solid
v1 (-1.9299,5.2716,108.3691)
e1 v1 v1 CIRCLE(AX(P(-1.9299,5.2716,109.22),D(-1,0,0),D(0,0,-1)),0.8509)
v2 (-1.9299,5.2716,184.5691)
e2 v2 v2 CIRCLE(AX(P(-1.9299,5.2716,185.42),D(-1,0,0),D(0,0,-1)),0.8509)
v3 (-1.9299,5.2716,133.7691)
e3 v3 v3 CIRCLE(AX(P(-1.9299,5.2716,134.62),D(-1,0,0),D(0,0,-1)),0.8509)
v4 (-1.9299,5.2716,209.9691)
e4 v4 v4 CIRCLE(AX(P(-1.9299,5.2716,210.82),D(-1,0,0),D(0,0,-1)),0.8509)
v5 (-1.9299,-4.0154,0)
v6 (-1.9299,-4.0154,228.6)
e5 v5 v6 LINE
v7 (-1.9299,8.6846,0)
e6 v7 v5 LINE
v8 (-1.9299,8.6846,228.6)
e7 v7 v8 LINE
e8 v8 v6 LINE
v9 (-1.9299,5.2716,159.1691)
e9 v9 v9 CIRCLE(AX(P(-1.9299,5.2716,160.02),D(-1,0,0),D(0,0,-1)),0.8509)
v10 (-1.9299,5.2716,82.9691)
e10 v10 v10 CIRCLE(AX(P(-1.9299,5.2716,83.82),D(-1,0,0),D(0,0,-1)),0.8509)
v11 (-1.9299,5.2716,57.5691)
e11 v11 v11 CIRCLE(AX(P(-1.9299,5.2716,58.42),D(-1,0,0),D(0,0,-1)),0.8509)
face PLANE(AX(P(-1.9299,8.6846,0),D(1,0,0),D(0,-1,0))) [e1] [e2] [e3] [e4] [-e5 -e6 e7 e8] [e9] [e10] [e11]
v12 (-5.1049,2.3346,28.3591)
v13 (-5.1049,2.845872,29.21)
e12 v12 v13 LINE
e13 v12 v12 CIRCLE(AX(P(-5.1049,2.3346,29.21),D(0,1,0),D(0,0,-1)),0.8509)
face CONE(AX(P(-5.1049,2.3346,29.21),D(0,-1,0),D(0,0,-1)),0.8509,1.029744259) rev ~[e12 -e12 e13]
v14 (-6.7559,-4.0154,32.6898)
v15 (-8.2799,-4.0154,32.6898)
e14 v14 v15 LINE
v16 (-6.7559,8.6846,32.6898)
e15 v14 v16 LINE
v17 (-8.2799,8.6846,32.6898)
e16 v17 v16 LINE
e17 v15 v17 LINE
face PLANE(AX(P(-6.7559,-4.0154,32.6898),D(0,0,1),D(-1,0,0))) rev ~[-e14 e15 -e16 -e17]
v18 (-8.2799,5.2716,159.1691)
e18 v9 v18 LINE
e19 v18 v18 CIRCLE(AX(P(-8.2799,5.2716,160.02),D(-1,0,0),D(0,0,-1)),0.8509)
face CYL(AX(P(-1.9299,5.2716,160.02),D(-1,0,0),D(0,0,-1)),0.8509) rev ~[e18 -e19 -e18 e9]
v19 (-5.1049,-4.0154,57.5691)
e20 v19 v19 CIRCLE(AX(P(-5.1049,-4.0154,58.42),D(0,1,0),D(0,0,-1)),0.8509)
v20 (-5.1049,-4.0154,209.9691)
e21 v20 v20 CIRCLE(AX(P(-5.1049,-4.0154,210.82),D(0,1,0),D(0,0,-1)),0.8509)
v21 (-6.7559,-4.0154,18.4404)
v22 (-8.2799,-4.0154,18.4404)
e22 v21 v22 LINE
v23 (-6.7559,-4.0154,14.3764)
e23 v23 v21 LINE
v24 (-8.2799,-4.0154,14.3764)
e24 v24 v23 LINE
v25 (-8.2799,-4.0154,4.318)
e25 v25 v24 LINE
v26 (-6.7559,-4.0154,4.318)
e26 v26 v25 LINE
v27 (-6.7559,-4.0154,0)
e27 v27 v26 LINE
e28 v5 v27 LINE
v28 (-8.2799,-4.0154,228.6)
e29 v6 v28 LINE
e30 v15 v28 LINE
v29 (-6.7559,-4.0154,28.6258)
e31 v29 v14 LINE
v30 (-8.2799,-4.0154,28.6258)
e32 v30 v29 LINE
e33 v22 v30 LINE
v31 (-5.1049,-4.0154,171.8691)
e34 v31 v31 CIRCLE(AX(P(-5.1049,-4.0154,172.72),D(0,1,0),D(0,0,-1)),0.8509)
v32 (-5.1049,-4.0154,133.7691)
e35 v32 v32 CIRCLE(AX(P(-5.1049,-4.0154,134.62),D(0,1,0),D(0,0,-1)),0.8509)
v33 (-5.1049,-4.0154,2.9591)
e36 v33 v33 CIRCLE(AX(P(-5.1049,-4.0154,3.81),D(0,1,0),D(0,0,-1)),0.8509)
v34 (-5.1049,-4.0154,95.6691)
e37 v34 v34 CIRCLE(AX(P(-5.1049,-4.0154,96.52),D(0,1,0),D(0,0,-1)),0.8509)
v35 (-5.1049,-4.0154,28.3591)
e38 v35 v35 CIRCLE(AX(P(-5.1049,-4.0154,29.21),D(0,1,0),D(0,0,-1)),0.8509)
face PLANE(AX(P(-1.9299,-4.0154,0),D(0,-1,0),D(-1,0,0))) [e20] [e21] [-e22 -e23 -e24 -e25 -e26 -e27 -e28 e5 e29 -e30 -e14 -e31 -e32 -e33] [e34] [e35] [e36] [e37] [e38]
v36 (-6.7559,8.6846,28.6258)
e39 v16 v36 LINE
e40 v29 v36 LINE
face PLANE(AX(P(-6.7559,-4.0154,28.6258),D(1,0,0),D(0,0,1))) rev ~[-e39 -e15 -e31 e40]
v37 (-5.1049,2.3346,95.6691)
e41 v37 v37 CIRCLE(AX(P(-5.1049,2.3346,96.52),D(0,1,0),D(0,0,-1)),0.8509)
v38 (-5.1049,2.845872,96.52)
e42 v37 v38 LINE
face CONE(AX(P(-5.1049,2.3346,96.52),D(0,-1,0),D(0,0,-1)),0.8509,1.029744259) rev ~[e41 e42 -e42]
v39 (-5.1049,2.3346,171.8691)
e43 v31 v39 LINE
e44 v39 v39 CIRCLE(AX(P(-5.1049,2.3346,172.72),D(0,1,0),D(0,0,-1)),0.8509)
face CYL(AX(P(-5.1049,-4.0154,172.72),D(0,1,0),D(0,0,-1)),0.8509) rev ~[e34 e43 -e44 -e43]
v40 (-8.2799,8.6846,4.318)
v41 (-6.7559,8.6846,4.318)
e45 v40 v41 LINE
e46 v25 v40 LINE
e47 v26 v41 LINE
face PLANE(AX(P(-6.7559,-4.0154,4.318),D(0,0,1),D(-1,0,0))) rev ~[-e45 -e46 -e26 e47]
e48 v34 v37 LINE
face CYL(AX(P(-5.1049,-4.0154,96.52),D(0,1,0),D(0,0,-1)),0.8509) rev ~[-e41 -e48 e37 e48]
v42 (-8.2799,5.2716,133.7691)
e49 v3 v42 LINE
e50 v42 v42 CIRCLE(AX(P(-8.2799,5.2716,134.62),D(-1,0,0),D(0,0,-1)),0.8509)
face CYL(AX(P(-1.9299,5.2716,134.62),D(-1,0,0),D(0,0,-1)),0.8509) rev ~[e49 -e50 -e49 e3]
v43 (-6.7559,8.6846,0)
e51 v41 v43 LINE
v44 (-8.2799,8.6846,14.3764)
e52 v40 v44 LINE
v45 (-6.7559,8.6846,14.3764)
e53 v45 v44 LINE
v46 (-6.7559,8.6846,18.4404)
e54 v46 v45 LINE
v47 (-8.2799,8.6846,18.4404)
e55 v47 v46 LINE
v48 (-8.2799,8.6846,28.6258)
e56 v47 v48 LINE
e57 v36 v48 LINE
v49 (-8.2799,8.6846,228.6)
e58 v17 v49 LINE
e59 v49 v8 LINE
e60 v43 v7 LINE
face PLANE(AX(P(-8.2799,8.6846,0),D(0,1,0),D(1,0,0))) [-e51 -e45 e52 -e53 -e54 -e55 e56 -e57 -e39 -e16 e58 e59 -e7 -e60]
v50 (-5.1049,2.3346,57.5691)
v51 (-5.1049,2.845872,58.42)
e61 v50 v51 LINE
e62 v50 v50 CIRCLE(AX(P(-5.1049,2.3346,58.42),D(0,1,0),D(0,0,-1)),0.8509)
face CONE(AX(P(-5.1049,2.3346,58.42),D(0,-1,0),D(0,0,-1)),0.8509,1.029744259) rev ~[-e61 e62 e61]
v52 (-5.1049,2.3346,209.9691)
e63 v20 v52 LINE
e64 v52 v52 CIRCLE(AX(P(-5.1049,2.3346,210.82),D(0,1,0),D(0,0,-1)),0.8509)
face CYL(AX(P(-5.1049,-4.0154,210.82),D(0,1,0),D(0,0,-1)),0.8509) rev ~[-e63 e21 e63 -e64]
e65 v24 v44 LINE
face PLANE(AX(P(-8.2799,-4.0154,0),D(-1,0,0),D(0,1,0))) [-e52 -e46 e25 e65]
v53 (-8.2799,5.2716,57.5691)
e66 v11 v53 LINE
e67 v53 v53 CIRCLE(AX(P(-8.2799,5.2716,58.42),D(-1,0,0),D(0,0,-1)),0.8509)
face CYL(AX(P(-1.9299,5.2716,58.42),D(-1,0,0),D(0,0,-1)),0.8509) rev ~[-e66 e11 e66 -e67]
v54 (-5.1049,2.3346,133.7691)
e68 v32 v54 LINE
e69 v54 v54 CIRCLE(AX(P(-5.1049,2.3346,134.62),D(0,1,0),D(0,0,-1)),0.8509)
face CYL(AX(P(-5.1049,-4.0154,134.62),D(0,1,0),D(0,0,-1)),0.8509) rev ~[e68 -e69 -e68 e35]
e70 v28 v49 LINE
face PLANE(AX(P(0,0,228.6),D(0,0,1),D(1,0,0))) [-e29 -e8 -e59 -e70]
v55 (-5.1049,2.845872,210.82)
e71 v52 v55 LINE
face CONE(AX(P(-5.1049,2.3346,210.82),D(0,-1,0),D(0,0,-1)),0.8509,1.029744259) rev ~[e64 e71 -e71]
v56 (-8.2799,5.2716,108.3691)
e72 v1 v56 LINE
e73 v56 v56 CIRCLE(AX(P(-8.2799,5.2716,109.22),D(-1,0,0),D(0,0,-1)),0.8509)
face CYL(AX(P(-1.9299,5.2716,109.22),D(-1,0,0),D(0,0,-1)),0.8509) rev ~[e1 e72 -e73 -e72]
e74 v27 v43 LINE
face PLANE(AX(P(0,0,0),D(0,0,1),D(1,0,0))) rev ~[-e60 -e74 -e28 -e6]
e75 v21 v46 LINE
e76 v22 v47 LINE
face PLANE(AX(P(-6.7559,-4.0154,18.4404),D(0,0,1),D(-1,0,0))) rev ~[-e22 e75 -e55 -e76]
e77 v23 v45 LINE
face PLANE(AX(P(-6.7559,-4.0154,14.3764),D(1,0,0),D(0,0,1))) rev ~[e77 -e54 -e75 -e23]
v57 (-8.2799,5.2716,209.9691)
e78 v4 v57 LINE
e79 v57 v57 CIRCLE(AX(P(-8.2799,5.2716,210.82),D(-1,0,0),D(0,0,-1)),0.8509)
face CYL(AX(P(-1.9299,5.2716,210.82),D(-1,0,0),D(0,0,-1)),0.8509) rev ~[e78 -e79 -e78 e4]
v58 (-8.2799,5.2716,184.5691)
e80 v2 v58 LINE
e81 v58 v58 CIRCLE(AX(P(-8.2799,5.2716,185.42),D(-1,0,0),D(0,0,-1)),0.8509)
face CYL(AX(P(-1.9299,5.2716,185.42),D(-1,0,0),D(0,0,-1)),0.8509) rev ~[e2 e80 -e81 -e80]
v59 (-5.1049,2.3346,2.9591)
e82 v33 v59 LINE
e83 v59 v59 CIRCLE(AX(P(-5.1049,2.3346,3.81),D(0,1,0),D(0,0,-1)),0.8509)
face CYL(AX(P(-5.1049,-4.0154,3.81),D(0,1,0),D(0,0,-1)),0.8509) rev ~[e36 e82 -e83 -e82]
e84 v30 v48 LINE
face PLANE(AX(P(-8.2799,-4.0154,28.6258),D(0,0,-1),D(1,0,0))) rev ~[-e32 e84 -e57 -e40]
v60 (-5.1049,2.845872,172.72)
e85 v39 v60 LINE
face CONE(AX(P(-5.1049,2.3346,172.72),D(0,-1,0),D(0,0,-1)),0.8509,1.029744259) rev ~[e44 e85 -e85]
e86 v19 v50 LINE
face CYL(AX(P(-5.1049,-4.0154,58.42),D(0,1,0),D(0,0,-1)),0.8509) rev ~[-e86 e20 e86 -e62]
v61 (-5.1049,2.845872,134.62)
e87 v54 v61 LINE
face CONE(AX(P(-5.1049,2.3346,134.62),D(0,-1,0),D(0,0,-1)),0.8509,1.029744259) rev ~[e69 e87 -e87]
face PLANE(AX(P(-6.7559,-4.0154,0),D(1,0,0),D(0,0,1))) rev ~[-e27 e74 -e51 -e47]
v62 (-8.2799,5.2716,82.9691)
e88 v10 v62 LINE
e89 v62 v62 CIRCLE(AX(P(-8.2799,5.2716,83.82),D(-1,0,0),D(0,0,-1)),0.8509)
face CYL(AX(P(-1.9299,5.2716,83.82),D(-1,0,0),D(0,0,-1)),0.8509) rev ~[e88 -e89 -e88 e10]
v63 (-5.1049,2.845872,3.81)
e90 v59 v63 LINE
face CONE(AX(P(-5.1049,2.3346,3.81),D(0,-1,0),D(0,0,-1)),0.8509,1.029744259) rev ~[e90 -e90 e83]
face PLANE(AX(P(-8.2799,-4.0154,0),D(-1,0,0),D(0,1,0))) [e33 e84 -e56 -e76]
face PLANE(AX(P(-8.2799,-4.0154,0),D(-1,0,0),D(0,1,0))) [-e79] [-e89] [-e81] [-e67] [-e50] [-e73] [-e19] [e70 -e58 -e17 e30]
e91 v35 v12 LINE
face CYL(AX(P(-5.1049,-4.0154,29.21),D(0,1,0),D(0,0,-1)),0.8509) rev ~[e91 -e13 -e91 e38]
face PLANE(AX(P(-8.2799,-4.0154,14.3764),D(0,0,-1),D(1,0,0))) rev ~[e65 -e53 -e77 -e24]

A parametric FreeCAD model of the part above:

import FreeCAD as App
import Part
import Sketcher
from FreeCAD import Vector
Q = App.Units.Quantity


def add_polygon(sketch, points):
    """Adds a closed chain of lines whose ends are joined by coincident constraints."""
    first, n = sketch.GeometryCount, len(points)
    for a, b in zip(points, points[1:] + points[:1]):
        sketch.addGeometry(Part.LineSegment(App.Vector(*a, 0), App.Vector(*b, 0)), False)
    for i in range(n):
        sketch.addConstraint(Sketcher.Constraint("Coincident", first + i, 2, first + (i + 1) % n, 1))

doc = App.newDocument("Part")
body = doc.addObject("PartDesign::Body", "Body")

sketch1 = body.newObject("Sketcher::SketchObject", "Sketch")
sketch1.AttachmentSupport = (doc.getObject("XY_Plane"), [""])
sketch1.MapMode = "FlatFace"
add_polygon(sketch1, [(-2, 9), (-8, 9), (-8, -4), (-2, -4)])
sketch1.addConstraint([
    Sketcher.Constraint("Horizontal", 0),
    Sketcher.Constraint("Vertical", 1),
    Sketcher.Constraint("Horizontal", 2),
    Sketcher.Constraint("Vertical", 3),
    Sketcher.Constraint("DistanceY", 1, 2, 1, 1, Q("0.5 in")),
    Sketcher.Constraint("DistanceX", 0, 2, 0, 1, Q("0.25 in")),
    Sketcher.Constraint("DistanceX", 0, 2, -1, 1, 8.28),
    Sketcher.Constraint("DistanceY", -1, 1, 0, 2, 8.6846),
])
pad1 = body.newObject("PartDesign::Pad", "Pad")
pad1.Profile = sketch1
pad1.Length = Q("9 in")

sketch2 = body.newObject("Sketcher::SketchObject", "Sketch001")
sketch2.AttachmentSupport = (doc.getObject("YZ_Plane"), [""])
sketch2.MapMode = "FlatFace"
sketch2.AttachmentOffset = App.Placement(Vector(0, 0, -1.9299), App.Rotation())
sketch2.addGeometry(Part.Circle(Vector(5.3, 210.8, 0), Vector(0, 0, 1), 0.9), False)
sketch2.addConstraint([
    Sketcher.Constraint("Diameter", 0, Q("0.067 in")),
    Sketcher.Constraint("DistanceY", -1, 1, 0, 3, Q("8.3 in")),
    Sketcher.Constraint("DistanceX", -1, 1, 0, 3, 5.2716),
])
doc.recompute()
hole = body.newObject("PartDesign::Hole", "Hole")
hole.Profile = sketch2
hole.ThreadType = "None"
hole.Diameter = Q("0.067 in")
hole.DepthType = "ThroughAll"
doc.recompute()

linearpattern = body.newObject("PartDesign::LinearPattern", "LinearPattern")
linearpattern.Originals = [hole]
linearpattern.Direction = (doc.getObject("Z_Axis"), [""])
linearpattern.Mode = "offset"
linearpattern.Offset = Q("1 in")
linearpattern.Occurrences = 7
linearpattern.Reversed = True
body.Tip = linearpattern

sketch3 = body.newObject("Sketcher::SketchObject", "Sketch002")
sketch3.AttachmentSupport = (doc.getObject("XZ_Plane"), [""])
sketch3.MapMode = "FlatFace"
sketch3.AttachmentOffset = App.Placement(Vector(0, 0, 4.0154), App.Rotation())
sketch3.addGeometry(Part.Circle(Vector(-5.1, 3.8, 0), Vector(0, 0, 1), 0.9), False)
sketch3.addConstraint([
    Sketcher.Constraint("Diameter", 0, Q("0.067 in")),
    Sketcher.Constraint("DistanceY", -1, 1, 0, 3, Q("0.15 in")),
    Sketcher.Constraint("DistanceX", 0, 3, -1, 1, 5.105),
])
doc.recompute()
hole2 = body.newObject("PartDesign::Hole", "Hole001")
hole2.Profile = sketch3
hole2.ThreadType = "None"
hole2.Diameter = Q("0.067 in")
hole2.DepthType = "Dimension"
hole2.Depth = Q("0.25 in")
hole2.DrillPoint = "Angled"
hole2.DrillPointAngle = 118

sketch4 = body.newObject("Sketcher::SketchObject", "Sketch003")
sketch4.AttachmentSupport = (doc.getObject("XZ_Plane"), [""])
sketch4.MapMode = "FlatFace"
sketch4.AttachmentOffset = App.Placement(Vector(0, 0, 4.0154), App.Rotation())
sketch4.addGeometry(Part.Circle(Vector(-5.1, 58.4, 0), Vector(0, 0, 1), 0.9), False)
sketch4.addConstraint([
    Sketcher.Constraint("Diameter", 0, Q("0.067 in")),
    Sketcher.Constraint("DistanceY", -1, 1, 0, 3, Q("2.3 in")),
    Sketcher.Constraint("DistanceX", 0, 3, -1, 1, 5.105),
])
doc.recompute()
hole3 = body.newObject("PartDesign::Hole", "Hole002")
hole3.Profile = sketch4
hole3.ThreadType = "None"
hole3.Diameter = Q("0.067 in")
hole3.DepthType = "Dimension"
hole3.Depth = Q("0.25 in")
hole3.DrillPoint = "Angled"
hole3.DrillPointAngle = 118
doc.recompute()

linearpattern2 = body.newObject("PartDesign::LinearPattern", "LinearPattern001")
linearpattern2.Originals = [hole2]
linearpattern2.Direction = (doc.getObject("Z_Axis"), [""])
linearpattern2.Mode = "offset"
linearpattern2.Offset = Q("1 in")
linearpattern2.Occurrences = 2
body.Tip = linearpattern2
doc.recompute()

linearpattern3 = body.newObject("PartDesign::LinearPattern", "LinearPattern002")
linearpattern3.Originals = [hole3]
linearpattern3.Direction = (doc.getObject("Z_Axis"), [""])
linearpattern3.Mode = "offset"
linearpattern3.Offset = Q("1.5 in")
linearpattern3.Occurrences = 5
body.Tip = linearpattern3

sketch5 = body.newObject("Sketcher::SketchObject", "Sketch004")
sketch5.AttachmentSupport = (doc.getObject("XZ_Plane"), [""])
sketch5.MapMode = "FlatFace"
sketch5.AttachmentOffset = App.Placement(Vector(0, 0, 4.0154), App.Rotation())
add_polygon(sketch5, [(-8.3, 32.7), (-8.3, 28.6), (-6.8, 28.6), (-6.8, 32.7)])
add_polygon(sketch5, [(-8.3, 18.4), (-8.3, 14.4), (-6.8, 14.4), (-6.8, 18.4)])
add_polygon(sketch5, [(-8.3, 4.3), (-8.3, 0), (-6.8, 0), (-6.8, 4.3)])
sketch5.addConstraint([
    Sketcher.Constraint("Vertical", 0),
    Sketcher.Constraint("Horizontal", 1),
    Sketcher.Constraint("Vertical", 2),
    Sketcher.Constraint("Horizontal", 3),
    Sketcher.Constraint("Vertical", 4),
    Sketcher.Constraint("Horizontal", 5),
    Sketcher.Constraint("Vertical", 6),
    Sketcher.Constraint("Horizontal", 7),
    Sketcher.Constraint("Vertical", 8),
    Sketcher.Constraint("Horizontal", 9),
    Sketcher.Constraint("Vertical", 10),
    Sketcher.Constraint("Horizontal", 11),
    Sketcher.Constraint("PointOnObject", 8, 2, -1),
    Sketcher.Constraint("Vertical", 3, 2, 4, 2),
    Sketcher.Constraint("Vertical", 2, 2, 5, 2),
    Sketcher.Constraint("Vertical", 7, 2, 8, 2),
    Sketcher.Constraint("Vertical", 6, 2, 9, 2),
    Sketcher.Constraint("Equal", 2, 4),
    Sketcher.Constraint("DistanceX", 1, 1, 1, 2, Q("0.06 in")),
    Sketcher.Constraint("DistanceY", 0, 2, 0, 1, Q("0.16 in")),
    Sketcher.Constraint("DistanceY", 8, 2, 8, 1, Q("0.17 in")),
    Sketcher.Constraint("DistanceY", -1, 1, 0, 2, Q("1.127 in")),
    Sketcher.Constraint("DistanceY", -1, 1, 4, 2, Q("0.566 in")),
    Sketcher.Constraint("DistanceX", 0, 2, -1, 1, 8.28),
])
pocket1 = body.newObject("PartDesign::Pocket", "Pocket")
pocket1.Profile = sketch5
pocket1.Type = "ThroughAll"

doc.recompute()
